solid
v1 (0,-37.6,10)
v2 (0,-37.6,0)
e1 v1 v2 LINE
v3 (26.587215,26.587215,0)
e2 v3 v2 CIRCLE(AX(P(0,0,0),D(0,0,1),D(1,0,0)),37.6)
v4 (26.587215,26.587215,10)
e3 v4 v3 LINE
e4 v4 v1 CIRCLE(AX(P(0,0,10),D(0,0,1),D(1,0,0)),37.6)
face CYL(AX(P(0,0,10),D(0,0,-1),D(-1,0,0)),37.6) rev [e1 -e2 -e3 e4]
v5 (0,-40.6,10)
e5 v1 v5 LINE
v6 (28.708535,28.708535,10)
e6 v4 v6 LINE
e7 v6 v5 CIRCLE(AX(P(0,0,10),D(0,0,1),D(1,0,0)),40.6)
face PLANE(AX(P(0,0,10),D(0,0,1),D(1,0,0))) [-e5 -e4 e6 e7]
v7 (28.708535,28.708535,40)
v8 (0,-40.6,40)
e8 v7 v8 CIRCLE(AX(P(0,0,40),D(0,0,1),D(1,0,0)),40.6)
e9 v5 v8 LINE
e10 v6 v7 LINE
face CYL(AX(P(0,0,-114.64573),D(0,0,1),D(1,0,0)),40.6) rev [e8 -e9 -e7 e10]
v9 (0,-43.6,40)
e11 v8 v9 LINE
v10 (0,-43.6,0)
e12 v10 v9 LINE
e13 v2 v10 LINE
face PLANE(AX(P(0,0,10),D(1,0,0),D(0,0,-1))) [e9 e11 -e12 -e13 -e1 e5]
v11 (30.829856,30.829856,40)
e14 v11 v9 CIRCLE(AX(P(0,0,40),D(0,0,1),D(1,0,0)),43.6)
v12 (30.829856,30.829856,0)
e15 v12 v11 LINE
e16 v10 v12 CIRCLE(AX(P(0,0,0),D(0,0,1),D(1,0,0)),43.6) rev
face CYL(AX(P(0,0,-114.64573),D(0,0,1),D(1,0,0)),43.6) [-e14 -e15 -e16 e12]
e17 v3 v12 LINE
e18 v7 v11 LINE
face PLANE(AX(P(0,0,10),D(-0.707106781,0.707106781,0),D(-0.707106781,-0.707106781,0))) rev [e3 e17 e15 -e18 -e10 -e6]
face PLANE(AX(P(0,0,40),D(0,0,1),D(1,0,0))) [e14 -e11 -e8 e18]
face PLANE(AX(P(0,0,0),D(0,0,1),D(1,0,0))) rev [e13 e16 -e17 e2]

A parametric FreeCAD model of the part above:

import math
import FreeCAD as App
import Part
import Sketcher
Q = App.Units.Quantity

doc = App.newDocument("Part")
body = doc.addObject("PartDesign::Body", "Body")

# Sketch on XY plane
sketch1 = body.newObject("Sketcher::SketchObject", "Sketch")
sketch1.AttachmentSupport = (doc.getObject("XY_Plane"), [""])
sketch1.MapMode = "FlatFace"
sketch1.addGeometry([
    Part.LineSegment(App.Vector(0, -40.6, 0), App.Vector(0, -37.6, 0)),
    Part.ArcOfCircle(Part.Circle(App.Vector(0, 0, 0), App.Vector(0, 0, 1), 37.6), math.radians(45), math.radians(270)),
    Part.LineSegment(App.Vector(26.6, 26.6, 0), App.Vector(28.7, 28.7, 0)),
    Part.ArcOfCircle(Part.Circle(App.Vector(0, 0, 0), App.Vector(0, 0, 1), 40.6), math.radians(45), math.radians(270)),
], False)
sketch1.addConstraint([
    Sketcher.Constraint("Coincident", 0, 2, 1, 2),
    Sketcher.Constraint("Coincident", 1, 1, 2, 1),
    Sketcher.Constraint("Coincident", 2, 2, 3, 1),
    Sketcher.Constraint("Coincident", 3, 2, 0, 1),
    Sketcher.Constraint("Vertical", 0),
    Sketcher.Constraint("Coincident", 1, 3, -1, 1),
    Sketcher.Constraint("Coincident", 3, 3, -1, 1),
    Sketcher.Constraint("PointOnObject", 0, 2, -2),
    Sketcher.Constraint("Radius", 1, 37.6),
    Sketcher.Constraint("Radius", 3, 40.6),
    Sketcher.Constraint("Angle", 2, Q("45 deg")),
    Sketcher.Constraint("DistanceX", -1, 1, 1, 1, 26.587215),
])
pad1 = body.newObject("PartDesign::Pad", "Pad")
pad1.Profile = sketch1
pad1.Length = 10

# Sketch on XY plane
sketch2 = body.newObject("Sketcher::SketchObject", "Sketch001")
sketch2.AttachmentSupport = (doc.getObject("XY_Plane"), [""])
sketch2.MapMode = "FlatFace"
sketch2.AttachmentOffset = App.Placement(App.Vector(0, 0, 10), App.Rotation())
sketch2.addGeometry([
    Part.ArcOfCircle(Part.Circle(App.Vector(0, 0, 0), App.Vector(0, 0, 1), 40.6), math.radians(45), math.radians(270)),
    Part.LineSegment(App.Vector(28.7, 28.7, 0), App.Vector(30.8, 30.8, 0)),
    Part.ArcOfCircle(Part.Circle(App.Vector(0, 0, 0), App.Vector(0, 0, 1), 43.6), math.radians(45), math.radians(270)),
    Part.LineSegment(App.Vector(0, -43.6, 0), App.Vector(0, -40.6, 0)),
], False)
sketch2.addConstraint([
    Sketcher.Constraint("Coincident", 0, 1, 1, 1),
    Sketcher.Constraint("Coincident", 1, 2, 2, 1),
    Sketcher.Constraint("Coincident", 2, 2, 3, 1),
    Sketcher.Constraint("Coincident", 3, 2, 0, 2),
    Sketcher.Constraint("Vertical", 3),
    Sketcher.Constraint("Coincident", 0, 3, -1, 1),
    Sketcher.Constraint("Coincident", 2, 3, -1, 1),
    Sketcher.Constraint("PointOnObject", 2, 2, -2),
    Sketcher.Constraint("Radius", 0, 40.6),
    Sketcher.Constraint("Radius", 2, 43.6),
    Sketcher.Constraint("Angle", 1, Q("45 deg")),
    Sketcher.Constraint("DistanceX", -1, 1, 0, 1, 28.708535),
])
pad2 = body.newObject("PartDesign::Pad", "Pad001")
pad2.Profile = sketch2
pad2.Type = "TwoLengths"
pad2.Length = 30
pad2.Length2 = 10

doc.recompute()
